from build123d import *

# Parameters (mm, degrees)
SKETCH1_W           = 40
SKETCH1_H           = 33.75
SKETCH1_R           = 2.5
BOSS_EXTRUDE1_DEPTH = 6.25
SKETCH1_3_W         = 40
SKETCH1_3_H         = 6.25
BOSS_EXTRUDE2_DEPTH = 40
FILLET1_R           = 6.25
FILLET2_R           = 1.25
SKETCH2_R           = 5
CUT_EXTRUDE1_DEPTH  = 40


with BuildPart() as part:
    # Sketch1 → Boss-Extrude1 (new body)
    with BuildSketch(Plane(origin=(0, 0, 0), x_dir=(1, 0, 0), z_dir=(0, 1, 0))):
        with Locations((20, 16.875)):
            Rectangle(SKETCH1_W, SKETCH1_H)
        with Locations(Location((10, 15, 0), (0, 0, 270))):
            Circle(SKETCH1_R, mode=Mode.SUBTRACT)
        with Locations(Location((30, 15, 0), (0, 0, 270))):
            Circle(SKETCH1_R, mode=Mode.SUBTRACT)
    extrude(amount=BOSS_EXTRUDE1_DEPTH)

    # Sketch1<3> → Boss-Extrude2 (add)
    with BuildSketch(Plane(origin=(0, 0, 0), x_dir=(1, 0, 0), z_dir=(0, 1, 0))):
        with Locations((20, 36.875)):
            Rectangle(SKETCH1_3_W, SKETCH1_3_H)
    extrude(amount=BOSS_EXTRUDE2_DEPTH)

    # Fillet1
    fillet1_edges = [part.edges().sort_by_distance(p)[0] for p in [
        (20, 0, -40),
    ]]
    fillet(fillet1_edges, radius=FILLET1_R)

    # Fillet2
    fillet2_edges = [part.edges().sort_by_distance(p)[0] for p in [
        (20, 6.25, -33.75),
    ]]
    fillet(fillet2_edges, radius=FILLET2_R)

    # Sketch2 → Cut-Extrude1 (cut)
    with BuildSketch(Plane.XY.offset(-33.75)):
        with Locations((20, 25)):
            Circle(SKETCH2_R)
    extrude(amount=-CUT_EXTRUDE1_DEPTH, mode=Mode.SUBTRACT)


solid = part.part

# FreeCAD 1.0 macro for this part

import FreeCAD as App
import Part
import Sketcher

V = App.Vector


def edges_at(feature, points):
    """Names of the edges that pass closest to the given points."""
    edges = feature.Shape.Edges
    near = lambda p: min(range(len(edges)), key=lambda i: edges[i].distToShape(Part.Vertex(*p))[0])
    return sorted({f"Edge{near(p) + 1}" for p in points})


def add_polygon(sketch, points):
    """Adds a closed chain of lines whose ends are joined by coincident constraints."""
    first, n = sketch.GeometryCount, len(points)
    for a, b in zip(points, points[1:] + points[:1]):
        sketch.addGeometry(Part.LineSegment(App.Vector(*a, 0), App.Vector(*b, 0)), False)
    for i in range(n):
        sketch.addConstraint(Sketcher.Constraint("Coincident", first + i, 2, first + (i + 1) % n, 1))

doc = App.newDocument("Part")
body = doc.addObject("PartDesign::Body", "Body")

sketch1 = body.newObject("Sketcher::SketchObject", "Sketch")
sketch1.AttachmentSupport = (doc.getObject("XZ_Plane"), [""])
sketch1.MapMode = "FlatFace"
add_polygon(sketch1, [(0, -33.8), (0, 0), (40, 0), (40, -33.8)])
sketch1.addGeometry(Part.Circle(V(10, -15, 0), V(0, 0, 1), 2.5), False)
sketch1.addGeometry(Part.Circle(V(30, -15, 0), V(0, 0, 1), 2.5), False)
sketch1.addConstraint([
    Sketcher.Constraint("Vertical", 0),
    Sketcher.Constraint("Horizontal", 1),
    Sketcher.Constraint("Vertical", 2),
    Sketcher.Constraint("Horizontal", 3),
    Sketcher.Constraint("Coincident", 0, 2, -1, 1),
    Sketcher.Constraint("Equal", 4, 5),
    Sketcher.Constraint("Horizontal", 4, 3, 5, 3),
    Sketcher.Constraint("Diameter", 4, 5.0),
    Sketcher.Constraint("DistanceX", 1, 1, 1, 2, 40.0),
    Sketcher.Constraint("DistanceX", -1, 1, 4, 3, 10.0),
    Sketcher.Constraint("DistanceY", 4, 3, -1, 1, 15.0),
    Sketcher.Constraint("DistanceX", -1, 1, 5, 3, 30.0),
    Sketcher.Constraint("DistanceY", 0, 1, 0, 2, 33.75),
])
pad1 = body.newObject("PartDesign::Pad", "Pad")
pad1.Profile = sketch1
pad1.Length = 6.25
pad1.Reversed = True

sketch2 = body.newObject("Sketcher::SketchObject", "Sketch001")
sketch2.AttachmentSupport = (doc.getObject("XZ_Plane"), [""])
sketch2.MapMode = "FlatFace"
add_polygon(sketch2, [(0, -40), (0, -34), (40, -34), (40, -40)])
sketch2.addConstraint([
    Sketcher.Constraint("Vertical", 0),
    Sketcher.Constraint("Horizontal", 1),
    Sketcher.Constraint("Vertical", 2),
    Sketcher.Constraint("Horizontal", 3),
    Sketcher.Constraint("PointOnObject", 0, 2, -2),
    Sketcher.Constraint("DistanceX", 1, 1, 1, 2, 40.0),
    Sketcher.Constraint("DistanceY", 2, 2, -1, 1, 40.0),
    Sketcher.Constraint("DistanceY", 0, 1, 0, 2, 6.25),
])
pad2 = body.newObject("PartDesign::Pad", "Pad001")
pad2.Profile = sketch2
pad2.Length = 40
pad2.Reversed = True
doc.recompute()

fillet = body.newObject("PartDesign::Fillet", "Fillet")
fillet.Base = (pad2, edges_at(pad2, [(20, 0, -40)]))
fillet.Radius = 6.25
doc.recompute()

fillet2 = body.newObject("PartDesign::Fillet", "Fillet001")
fillet2.Base = (fillet, edges_at(fillet, [(20, 6.25, -33.75)]))
fillet2.Radius = 1.25

sketch3 = body.newObject("Sketcher::SketchObject", "Sketch002")
sketch3.AttachmentSupport = (doc.getObject("XY_Plane"), [""])
sketch3.MapMode = "FlatFace"
sketch3.AttachmentOffset = App.Placement(V(0, 0, -33.75), App.Rotation())
sketch3.addGeometry(Part.Circle(V(20, 25, 0), V(0, 0, 1), 5), False)
sketch3.addConstraint([
    Sketcher.Constraint("Diameter", 0, 10.0),
    Sketcher.Constraint("DistanceX", -1, 1, 0, 3, 20.0),
    Sketcher.Constraint("DistanceY", -1, 1, 0, 3, 25.0),
])
pocket1 = body.newObject("PartDesign::Pocket", "Pocket")
pocket1.Profile = sketch3
pocket1.Length = 40

doc.recompute()
